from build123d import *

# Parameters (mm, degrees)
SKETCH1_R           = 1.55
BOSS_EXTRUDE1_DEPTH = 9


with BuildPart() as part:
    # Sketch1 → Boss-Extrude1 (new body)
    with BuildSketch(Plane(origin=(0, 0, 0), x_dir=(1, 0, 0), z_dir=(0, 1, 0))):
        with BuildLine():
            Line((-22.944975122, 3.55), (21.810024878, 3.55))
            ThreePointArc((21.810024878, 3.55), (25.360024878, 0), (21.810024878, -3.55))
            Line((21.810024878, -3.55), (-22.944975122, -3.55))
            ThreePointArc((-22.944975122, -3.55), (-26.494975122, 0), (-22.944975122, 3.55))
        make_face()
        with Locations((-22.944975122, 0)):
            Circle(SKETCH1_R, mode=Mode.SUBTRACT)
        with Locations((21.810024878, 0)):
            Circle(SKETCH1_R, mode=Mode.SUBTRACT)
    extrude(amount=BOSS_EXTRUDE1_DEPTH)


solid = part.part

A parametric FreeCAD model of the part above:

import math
import FreeCAD as App
import Part
import Sketcher

V = App.Vector

doc = App.newDocument("Part")
body = doc.addObject("PartDesign::Body", "Body")

# Sketch on XZ plane
sketch1 = doc.addObject("Sketcher::SketchObject", "Sketch")
body.addObject(sketch1)
sketch1.AttachmentSupport = (doc.XZ_Plane, [""])
sketch1.MapMode = "FlatFace"
sketch1.addGeometry([
    Part.LineSegment(V(21.810025, -3.55, 0), V(-22.944975, -3.55, 0)),  # 0
    Part.ArcOfCircle(Part.Circle(V(-22.944975, 0, 0), V(0, 0, 1), 3.55), math.radians(90), math.radians(270)),  # 1
    Part.LineSegment(V(-22.944975, 3.55, 0), V(21.810025, 3.55, 0)),  # 2
    Part.ArcOfCircle(Part.Circle(V(21.810025, 0, 0), V(0, 0, 1), 3.55), math.radians(-90), math.radians(90)),  # 3
    Part.Circle(V(21.810025, 0, 0), V(0, 0, 1), 1.55),  # 4
    Part.Circle(V(-22.944975, 0, 0), V(0, 0, 1), 1.55),  # 5
], False)
sketch1.addConstraint([
    Sketcher.Constraint("Tangent", 0, 2, 1, 2),
    Sketcher.Constraint("Tangent", 1, 1, 2, 1),
    Sketcher.Constraint("Tangent", 2, 2, 3, 2),
    Sketcher.Constraint("Tangent", 3, 1, 0, 1),
    Sketcher.Constraint("Horizontal", 0),
    Sketcher.Constraint("Horizontal", 2),
    Sketcher.Constraint("Coincident", 4, 3, 3, 3),
    Sketcher.Constraint("Coincident", 5, 3, 1, 3),
    Sketcher.Constraint("Equal", 4, 5),
    Sketcher.Constraint("PointOnObject", 1, 3, -1),
    Sketcher.Constraint("Diameter", 4, 3.1),
    Sketcher.Constraint("Radius", 1, 3.55),
    Sketcher.Constraint("DistanceX", 0, 2, 0, 1, 44.755),
    Sketcher.Constraint("DistanceX", 1, 3, -1, 1, 22.944975),
])
pad1 = doc.addObject("PartDesign::Pad", "Pad")
body.addObject(pad1)
pad1.Profile = sketch1
pad1.Length = 9
pad1.Reversed = True

doc.recompute()
